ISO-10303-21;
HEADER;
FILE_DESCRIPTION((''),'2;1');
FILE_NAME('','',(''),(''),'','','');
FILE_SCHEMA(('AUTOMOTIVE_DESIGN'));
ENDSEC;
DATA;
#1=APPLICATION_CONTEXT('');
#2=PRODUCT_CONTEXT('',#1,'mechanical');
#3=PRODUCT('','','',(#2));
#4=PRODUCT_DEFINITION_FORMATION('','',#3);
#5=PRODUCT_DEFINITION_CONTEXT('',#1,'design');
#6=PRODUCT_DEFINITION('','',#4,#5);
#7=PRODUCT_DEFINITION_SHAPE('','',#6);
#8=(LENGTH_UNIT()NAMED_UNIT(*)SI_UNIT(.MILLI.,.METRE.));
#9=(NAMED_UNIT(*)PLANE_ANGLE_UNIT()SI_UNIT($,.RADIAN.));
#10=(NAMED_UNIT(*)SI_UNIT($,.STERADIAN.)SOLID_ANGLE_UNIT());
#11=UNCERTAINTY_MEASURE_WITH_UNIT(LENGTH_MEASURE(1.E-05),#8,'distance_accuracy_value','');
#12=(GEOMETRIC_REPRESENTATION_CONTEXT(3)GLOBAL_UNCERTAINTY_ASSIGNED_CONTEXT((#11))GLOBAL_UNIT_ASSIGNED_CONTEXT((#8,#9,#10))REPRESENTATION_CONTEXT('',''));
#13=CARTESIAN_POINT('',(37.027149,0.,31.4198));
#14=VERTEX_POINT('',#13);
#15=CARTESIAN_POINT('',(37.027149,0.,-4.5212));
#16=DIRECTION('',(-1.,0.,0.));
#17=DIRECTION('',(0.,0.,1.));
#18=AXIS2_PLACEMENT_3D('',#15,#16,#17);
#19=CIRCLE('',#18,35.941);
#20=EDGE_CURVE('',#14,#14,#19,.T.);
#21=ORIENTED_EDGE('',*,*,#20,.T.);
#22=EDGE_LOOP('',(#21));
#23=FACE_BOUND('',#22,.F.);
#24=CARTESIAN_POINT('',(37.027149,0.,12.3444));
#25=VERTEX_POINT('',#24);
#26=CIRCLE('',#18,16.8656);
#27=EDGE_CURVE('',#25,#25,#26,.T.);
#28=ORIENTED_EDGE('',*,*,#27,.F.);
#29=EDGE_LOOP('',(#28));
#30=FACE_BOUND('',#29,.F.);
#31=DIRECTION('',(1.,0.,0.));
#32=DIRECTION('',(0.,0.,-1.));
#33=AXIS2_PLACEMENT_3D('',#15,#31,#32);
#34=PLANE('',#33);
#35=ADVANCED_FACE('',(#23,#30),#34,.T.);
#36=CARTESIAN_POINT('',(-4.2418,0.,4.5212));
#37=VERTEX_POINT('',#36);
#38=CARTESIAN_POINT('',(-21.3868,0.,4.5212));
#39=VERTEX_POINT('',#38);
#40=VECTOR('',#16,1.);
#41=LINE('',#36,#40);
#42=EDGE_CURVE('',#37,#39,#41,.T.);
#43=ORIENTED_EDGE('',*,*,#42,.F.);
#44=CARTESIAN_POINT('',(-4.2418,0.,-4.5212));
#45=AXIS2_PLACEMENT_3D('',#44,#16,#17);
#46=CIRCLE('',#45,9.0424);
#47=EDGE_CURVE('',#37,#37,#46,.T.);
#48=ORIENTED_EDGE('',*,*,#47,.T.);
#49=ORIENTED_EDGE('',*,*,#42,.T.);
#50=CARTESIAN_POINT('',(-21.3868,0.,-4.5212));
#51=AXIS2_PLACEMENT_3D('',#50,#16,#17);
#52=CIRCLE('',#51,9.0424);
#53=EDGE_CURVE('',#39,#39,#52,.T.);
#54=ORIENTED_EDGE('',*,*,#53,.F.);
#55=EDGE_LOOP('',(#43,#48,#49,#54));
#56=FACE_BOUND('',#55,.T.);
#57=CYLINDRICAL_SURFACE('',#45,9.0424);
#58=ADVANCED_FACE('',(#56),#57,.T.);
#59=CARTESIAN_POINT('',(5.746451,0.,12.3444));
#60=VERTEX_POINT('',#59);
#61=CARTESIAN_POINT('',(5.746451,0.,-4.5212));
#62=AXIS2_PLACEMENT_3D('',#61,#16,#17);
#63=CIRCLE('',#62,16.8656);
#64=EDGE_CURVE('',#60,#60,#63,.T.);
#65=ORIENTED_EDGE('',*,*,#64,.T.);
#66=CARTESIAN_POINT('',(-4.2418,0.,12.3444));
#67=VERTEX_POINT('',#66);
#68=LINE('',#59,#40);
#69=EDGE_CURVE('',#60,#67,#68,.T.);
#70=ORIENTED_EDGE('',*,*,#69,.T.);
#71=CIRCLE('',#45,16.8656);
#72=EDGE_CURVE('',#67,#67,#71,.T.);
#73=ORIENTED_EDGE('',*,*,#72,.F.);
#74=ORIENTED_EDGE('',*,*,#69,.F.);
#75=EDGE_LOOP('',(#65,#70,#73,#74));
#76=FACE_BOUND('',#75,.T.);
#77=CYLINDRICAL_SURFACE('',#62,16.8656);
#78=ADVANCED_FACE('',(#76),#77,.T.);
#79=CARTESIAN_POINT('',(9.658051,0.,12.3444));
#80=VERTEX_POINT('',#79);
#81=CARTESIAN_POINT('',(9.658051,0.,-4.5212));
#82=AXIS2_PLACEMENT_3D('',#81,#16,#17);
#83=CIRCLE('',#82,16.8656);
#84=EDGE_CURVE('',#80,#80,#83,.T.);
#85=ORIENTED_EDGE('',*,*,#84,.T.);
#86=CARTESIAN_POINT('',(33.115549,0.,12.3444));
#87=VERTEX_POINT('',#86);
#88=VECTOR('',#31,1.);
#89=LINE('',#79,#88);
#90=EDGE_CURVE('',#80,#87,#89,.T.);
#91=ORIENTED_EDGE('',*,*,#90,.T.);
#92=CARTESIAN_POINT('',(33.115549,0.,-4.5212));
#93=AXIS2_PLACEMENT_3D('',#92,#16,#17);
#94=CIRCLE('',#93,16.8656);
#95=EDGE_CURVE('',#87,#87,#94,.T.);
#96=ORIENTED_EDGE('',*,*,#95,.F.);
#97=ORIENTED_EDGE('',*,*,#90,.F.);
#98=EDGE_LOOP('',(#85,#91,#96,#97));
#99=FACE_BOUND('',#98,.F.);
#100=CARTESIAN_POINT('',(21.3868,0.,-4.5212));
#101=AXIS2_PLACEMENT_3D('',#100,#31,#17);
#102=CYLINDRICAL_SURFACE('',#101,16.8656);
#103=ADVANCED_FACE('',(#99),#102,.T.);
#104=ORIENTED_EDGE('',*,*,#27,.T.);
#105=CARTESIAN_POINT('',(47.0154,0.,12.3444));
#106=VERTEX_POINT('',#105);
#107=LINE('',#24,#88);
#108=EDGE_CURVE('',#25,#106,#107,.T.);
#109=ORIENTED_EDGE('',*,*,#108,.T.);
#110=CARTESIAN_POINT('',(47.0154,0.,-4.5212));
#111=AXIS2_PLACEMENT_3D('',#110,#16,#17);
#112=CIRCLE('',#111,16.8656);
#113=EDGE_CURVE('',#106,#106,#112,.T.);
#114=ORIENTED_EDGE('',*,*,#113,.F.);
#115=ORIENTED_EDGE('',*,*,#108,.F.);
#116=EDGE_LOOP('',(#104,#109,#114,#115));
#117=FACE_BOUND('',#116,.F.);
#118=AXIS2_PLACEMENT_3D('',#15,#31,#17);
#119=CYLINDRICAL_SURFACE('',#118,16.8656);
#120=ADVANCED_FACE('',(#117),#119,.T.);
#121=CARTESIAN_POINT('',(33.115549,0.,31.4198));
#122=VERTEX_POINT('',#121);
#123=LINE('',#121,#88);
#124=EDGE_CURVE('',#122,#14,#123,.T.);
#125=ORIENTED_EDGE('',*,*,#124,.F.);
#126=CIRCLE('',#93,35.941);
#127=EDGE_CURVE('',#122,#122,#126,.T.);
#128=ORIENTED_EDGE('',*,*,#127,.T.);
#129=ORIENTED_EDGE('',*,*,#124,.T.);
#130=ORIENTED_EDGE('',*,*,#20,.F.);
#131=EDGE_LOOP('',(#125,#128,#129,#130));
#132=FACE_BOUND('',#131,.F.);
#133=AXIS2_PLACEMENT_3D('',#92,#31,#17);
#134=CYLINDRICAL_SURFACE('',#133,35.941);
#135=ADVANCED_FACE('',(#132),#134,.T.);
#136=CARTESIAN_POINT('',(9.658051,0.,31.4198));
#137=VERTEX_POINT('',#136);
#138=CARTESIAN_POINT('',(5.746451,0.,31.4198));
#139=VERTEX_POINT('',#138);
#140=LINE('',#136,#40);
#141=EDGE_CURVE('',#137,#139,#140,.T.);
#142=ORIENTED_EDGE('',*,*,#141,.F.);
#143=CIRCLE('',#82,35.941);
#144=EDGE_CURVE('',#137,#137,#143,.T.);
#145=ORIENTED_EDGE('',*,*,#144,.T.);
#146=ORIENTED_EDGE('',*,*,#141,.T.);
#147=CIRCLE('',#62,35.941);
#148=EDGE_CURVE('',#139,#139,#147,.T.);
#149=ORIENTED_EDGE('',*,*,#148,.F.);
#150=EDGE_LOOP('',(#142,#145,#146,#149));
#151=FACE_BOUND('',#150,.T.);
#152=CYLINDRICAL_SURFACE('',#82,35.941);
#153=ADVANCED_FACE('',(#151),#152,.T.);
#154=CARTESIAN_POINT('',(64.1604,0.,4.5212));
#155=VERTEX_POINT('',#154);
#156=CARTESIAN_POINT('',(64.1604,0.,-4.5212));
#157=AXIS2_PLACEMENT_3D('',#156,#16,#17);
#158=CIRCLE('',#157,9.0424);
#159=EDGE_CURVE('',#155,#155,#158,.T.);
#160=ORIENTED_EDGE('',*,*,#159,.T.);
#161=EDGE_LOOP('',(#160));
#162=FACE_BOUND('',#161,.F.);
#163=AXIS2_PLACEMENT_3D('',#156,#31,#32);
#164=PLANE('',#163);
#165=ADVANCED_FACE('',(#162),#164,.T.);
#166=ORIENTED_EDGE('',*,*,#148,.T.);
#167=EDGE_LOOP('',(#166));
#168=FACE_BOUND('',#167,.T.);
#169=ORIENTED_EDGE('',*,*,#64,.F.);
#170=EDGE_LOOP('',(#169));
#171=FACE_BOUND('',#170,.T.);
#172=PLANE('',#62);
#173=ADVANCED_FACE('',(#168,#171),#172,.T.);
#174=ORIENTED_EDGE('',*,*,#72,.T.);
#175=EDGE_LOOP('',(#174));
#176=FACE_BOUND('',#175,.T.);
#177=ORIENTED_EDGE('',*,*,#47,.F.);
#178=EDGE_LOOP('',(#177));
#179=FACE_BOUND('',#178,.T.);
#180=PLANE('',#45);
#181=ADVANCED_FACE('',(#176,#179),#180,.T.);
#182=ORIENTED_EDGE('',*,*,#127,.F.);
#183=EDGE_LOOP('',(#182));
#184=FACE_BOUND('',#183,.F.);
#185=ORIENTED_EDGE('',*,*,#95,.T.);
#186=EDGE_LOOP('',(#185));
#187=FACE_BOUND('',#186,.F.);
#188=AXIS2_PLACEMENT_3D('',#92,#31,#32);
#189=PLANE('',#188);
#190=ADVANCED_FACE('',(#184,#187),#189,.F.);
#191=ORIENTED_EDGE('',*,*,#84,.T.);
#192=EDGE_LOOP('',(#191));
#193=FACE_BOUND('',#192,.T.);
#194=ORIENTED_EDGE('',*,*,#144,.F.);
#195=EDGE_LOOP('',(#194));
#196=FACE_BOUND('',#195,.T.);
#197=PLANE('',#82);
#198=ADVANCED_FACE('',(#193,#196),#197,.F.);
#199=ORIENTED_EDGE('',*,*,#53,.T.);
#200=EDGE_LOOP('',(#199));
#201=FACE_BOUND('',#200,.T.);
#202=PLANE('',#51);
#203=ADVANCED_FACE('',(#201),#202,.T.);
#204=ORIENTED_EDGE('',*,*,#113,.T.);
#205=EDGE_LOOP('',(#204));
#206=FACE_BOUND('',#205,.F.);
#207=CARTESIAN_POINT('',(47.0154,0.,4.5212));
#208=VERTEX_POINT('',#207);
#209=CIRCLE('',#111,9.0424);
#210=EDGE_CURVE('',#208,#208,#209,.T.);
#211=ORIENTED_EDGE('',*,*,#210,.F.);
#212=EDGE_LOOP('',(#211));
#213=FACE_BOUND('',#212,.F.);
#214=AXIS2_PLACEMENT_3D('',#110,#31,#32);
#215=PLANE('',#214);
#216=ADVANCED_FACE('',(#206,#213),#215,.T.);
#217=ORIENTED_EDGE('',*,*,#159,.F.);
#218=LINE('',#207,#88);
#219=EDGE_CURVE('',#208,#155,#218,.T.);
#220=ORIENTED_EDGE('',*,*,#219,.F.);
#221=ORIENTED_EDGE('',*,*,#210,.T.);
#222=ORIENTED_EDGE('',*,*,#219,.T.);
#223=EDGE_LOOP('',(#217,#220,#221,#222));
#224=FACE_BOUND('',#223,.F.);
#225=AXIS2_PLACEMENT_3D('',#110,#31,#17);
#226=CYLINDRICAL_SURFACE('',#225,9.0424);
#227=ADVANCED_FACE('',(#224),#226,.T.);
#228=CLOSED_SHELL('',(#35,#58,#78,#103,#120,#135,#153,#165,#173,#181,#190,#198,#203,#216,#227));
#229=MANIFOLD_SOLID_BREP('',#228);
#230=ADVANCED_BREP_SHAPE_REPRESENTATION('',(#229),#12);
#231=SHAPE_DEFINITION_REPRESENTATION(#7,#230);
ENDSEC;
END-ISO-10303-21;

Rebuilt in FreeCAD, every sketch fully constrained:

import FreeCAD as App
import Part
import Sketcher
Q = App.Units.Quantity


def add_polygon(sketch, points):
    """Adds a closed chain of lines whose ends are joined by coincident constraints."""
    first, n = sketch.GeometryCount, len(points)
    for a, b in zip(points, points[1:] + points[:1]):
        sketch.addGeometry(Part.LineSegment(App.Vector(*a, 0), App.Vector(*b, 0)), False)
    for i in range(n):
        sketch.addConstraint(Sketcher.Constraint("Coincident", first + i, 2, first + (i + 1) % n, 1))

doc = App.newDocument("Part")
params = doc.addObject("Spreadsheet::Sheet", "Params")
for row, (alias, value) in enumerate([
    ("sketch1_width", "0.675 in"),
    ("sketch1_width2", "1.684 in"),
    ("sketch1_width3", "0.154 in"),
    ("sketch1_height", "0.308 in"),
    ("sketch1_height2", "0.356 in"),
    ("revolution_angle", "360 deg"),
], start=1):
    params.set(f"A{row}", alias)
    params.set(f"B{row}", "=" + value)
    params.setAlias(f"B{row}", alias)

body = doc.addObject("PartDesign::Body", "Body")

sketch1 = doc.addObject("Sketcher::SketchObject", "Sketch")
body.addObject(sketch1)
sketch1.AttachmentSupport = (doc.XZ_Plane, [""])
sketch1.MapMode = "FlatFace"
add_polygon(sketch1, [(-4.2418, 12.3444), (-4.2418, 4.5212), (-21.3868, 4.5212), (-21.3868, -4.5212), (21.3868, -4.5212), (21.3868, 12.3444), (9.658051, 12.3444), (9.658051, 31.4198), (5.746451, 31.4198), (5.746451, 12.3444)])
sketch1.addGeometry(Part.LineSegment(App.Vector(21.3868, -4.5212, 0), App.Vector(-21.3868, -4.5212, 0)), True)
sketch1.addConstraint([
    Sketcher.Constraint("Vertical", 0),
    Sketcher.Constraint("Horizontal", 1),
    Sketcher.Constraint("Vertical", 2),
    Sketcher.Constraint("Horizontal", 3),
    Sketcher.Constraint("Vertical", 4),
    Sketcher.Constraint("Horizontal", 5),
    Sketcher.Constraint("Vertical", 6),
    Sketcher.Constraint("Horizontal", 7),
    Sketcher.Constraint("Vertical", 8),
    Sketcher.Constraint("Horizontal", 9),
    Sketcher.Constraint("Horizontal", 10),
    Sketcher.Constraint("Coincident", 10, 1, 3, 2),
    Sketcher.Constraint("Symmetric", 1, 2, 3, 2, -1, 1),
    Sketcher.Constraint("Horizontal", 5, 2, 8, 2),
    Sketcher.Constraint("Vertical", 1, 2, 10, 2),
    Sketcher.Constraint("DistanceX", 1, 2, 1, 1, Q("0.675 in")),
    Sketcher.Constraint("DistanceX", 3, 1, 3, 2, Q("1.684 in")),
    Sketcher.Constraint("DistanceX", 7, 2, 7, 1, Q("0.154 in")),
    Sketcher.Constraint("DistanceY", 0, 2, 0, 1, Q("0.308 in")),
    Sketcher.Constraint("DistanceY", 2, 2, 2, 1, Q("0.356 in")),
    Sketcher.Constraint("DistanceY", 6, 1, 6, 2, Q("0.751 in")),
    Sketcher.Constraint("DistanceX", 5, 2, 5, 1, Q("11.728749 mm")),
])
sketch1.setExpression("Constraints[25]", "Params.sketch1_width")
sketch1.setExpression("Constraints[26]", "Params.sketch1_width2")
sketch1.setExpression("Constraints[27]", "Params.sketch1_width3")
sketch1.setExpression("Constraints[28]", "Params.sketch1_height")
sketch1.setExpression("Constraints[29]", "Params.sketch1_height2")
revolution = doc.addObject("PartDesign::Revolution", "Revolution")
body.addObject(revolution)
revolution.Profile = sketch1
revolution.ReferenceAxis = (sketch1, ["Axis0"])
revolution.setExpression("Angle", "Params.revolution_angle")
body2 = doc.addObject("PartDesign::Body", "Body001")
doc.recompute()

body2.BaseFeature = body
doc.recompute()

mirroring = doc.addObject("Part::Mirroring", "Mirroring")
mirroring.Source = body
mirroring.Base = App.Vector(21.3868, 0, -4.5212)
mirroring.Normal = App.Vector(1, 0, 0)
body3 = doc.addObject("PartDesign::Body", "Body002")
body3.BaseFeature = mirroring
boolean = doc.addObject("PartDesign::Boolean", "Boolean")
body2.addObject(boolean)
boolean.Type = "Fuse"
boolean.addObjects([body3])
doc.recompute()
mirroring.Visibility = False

doc.recompute()
